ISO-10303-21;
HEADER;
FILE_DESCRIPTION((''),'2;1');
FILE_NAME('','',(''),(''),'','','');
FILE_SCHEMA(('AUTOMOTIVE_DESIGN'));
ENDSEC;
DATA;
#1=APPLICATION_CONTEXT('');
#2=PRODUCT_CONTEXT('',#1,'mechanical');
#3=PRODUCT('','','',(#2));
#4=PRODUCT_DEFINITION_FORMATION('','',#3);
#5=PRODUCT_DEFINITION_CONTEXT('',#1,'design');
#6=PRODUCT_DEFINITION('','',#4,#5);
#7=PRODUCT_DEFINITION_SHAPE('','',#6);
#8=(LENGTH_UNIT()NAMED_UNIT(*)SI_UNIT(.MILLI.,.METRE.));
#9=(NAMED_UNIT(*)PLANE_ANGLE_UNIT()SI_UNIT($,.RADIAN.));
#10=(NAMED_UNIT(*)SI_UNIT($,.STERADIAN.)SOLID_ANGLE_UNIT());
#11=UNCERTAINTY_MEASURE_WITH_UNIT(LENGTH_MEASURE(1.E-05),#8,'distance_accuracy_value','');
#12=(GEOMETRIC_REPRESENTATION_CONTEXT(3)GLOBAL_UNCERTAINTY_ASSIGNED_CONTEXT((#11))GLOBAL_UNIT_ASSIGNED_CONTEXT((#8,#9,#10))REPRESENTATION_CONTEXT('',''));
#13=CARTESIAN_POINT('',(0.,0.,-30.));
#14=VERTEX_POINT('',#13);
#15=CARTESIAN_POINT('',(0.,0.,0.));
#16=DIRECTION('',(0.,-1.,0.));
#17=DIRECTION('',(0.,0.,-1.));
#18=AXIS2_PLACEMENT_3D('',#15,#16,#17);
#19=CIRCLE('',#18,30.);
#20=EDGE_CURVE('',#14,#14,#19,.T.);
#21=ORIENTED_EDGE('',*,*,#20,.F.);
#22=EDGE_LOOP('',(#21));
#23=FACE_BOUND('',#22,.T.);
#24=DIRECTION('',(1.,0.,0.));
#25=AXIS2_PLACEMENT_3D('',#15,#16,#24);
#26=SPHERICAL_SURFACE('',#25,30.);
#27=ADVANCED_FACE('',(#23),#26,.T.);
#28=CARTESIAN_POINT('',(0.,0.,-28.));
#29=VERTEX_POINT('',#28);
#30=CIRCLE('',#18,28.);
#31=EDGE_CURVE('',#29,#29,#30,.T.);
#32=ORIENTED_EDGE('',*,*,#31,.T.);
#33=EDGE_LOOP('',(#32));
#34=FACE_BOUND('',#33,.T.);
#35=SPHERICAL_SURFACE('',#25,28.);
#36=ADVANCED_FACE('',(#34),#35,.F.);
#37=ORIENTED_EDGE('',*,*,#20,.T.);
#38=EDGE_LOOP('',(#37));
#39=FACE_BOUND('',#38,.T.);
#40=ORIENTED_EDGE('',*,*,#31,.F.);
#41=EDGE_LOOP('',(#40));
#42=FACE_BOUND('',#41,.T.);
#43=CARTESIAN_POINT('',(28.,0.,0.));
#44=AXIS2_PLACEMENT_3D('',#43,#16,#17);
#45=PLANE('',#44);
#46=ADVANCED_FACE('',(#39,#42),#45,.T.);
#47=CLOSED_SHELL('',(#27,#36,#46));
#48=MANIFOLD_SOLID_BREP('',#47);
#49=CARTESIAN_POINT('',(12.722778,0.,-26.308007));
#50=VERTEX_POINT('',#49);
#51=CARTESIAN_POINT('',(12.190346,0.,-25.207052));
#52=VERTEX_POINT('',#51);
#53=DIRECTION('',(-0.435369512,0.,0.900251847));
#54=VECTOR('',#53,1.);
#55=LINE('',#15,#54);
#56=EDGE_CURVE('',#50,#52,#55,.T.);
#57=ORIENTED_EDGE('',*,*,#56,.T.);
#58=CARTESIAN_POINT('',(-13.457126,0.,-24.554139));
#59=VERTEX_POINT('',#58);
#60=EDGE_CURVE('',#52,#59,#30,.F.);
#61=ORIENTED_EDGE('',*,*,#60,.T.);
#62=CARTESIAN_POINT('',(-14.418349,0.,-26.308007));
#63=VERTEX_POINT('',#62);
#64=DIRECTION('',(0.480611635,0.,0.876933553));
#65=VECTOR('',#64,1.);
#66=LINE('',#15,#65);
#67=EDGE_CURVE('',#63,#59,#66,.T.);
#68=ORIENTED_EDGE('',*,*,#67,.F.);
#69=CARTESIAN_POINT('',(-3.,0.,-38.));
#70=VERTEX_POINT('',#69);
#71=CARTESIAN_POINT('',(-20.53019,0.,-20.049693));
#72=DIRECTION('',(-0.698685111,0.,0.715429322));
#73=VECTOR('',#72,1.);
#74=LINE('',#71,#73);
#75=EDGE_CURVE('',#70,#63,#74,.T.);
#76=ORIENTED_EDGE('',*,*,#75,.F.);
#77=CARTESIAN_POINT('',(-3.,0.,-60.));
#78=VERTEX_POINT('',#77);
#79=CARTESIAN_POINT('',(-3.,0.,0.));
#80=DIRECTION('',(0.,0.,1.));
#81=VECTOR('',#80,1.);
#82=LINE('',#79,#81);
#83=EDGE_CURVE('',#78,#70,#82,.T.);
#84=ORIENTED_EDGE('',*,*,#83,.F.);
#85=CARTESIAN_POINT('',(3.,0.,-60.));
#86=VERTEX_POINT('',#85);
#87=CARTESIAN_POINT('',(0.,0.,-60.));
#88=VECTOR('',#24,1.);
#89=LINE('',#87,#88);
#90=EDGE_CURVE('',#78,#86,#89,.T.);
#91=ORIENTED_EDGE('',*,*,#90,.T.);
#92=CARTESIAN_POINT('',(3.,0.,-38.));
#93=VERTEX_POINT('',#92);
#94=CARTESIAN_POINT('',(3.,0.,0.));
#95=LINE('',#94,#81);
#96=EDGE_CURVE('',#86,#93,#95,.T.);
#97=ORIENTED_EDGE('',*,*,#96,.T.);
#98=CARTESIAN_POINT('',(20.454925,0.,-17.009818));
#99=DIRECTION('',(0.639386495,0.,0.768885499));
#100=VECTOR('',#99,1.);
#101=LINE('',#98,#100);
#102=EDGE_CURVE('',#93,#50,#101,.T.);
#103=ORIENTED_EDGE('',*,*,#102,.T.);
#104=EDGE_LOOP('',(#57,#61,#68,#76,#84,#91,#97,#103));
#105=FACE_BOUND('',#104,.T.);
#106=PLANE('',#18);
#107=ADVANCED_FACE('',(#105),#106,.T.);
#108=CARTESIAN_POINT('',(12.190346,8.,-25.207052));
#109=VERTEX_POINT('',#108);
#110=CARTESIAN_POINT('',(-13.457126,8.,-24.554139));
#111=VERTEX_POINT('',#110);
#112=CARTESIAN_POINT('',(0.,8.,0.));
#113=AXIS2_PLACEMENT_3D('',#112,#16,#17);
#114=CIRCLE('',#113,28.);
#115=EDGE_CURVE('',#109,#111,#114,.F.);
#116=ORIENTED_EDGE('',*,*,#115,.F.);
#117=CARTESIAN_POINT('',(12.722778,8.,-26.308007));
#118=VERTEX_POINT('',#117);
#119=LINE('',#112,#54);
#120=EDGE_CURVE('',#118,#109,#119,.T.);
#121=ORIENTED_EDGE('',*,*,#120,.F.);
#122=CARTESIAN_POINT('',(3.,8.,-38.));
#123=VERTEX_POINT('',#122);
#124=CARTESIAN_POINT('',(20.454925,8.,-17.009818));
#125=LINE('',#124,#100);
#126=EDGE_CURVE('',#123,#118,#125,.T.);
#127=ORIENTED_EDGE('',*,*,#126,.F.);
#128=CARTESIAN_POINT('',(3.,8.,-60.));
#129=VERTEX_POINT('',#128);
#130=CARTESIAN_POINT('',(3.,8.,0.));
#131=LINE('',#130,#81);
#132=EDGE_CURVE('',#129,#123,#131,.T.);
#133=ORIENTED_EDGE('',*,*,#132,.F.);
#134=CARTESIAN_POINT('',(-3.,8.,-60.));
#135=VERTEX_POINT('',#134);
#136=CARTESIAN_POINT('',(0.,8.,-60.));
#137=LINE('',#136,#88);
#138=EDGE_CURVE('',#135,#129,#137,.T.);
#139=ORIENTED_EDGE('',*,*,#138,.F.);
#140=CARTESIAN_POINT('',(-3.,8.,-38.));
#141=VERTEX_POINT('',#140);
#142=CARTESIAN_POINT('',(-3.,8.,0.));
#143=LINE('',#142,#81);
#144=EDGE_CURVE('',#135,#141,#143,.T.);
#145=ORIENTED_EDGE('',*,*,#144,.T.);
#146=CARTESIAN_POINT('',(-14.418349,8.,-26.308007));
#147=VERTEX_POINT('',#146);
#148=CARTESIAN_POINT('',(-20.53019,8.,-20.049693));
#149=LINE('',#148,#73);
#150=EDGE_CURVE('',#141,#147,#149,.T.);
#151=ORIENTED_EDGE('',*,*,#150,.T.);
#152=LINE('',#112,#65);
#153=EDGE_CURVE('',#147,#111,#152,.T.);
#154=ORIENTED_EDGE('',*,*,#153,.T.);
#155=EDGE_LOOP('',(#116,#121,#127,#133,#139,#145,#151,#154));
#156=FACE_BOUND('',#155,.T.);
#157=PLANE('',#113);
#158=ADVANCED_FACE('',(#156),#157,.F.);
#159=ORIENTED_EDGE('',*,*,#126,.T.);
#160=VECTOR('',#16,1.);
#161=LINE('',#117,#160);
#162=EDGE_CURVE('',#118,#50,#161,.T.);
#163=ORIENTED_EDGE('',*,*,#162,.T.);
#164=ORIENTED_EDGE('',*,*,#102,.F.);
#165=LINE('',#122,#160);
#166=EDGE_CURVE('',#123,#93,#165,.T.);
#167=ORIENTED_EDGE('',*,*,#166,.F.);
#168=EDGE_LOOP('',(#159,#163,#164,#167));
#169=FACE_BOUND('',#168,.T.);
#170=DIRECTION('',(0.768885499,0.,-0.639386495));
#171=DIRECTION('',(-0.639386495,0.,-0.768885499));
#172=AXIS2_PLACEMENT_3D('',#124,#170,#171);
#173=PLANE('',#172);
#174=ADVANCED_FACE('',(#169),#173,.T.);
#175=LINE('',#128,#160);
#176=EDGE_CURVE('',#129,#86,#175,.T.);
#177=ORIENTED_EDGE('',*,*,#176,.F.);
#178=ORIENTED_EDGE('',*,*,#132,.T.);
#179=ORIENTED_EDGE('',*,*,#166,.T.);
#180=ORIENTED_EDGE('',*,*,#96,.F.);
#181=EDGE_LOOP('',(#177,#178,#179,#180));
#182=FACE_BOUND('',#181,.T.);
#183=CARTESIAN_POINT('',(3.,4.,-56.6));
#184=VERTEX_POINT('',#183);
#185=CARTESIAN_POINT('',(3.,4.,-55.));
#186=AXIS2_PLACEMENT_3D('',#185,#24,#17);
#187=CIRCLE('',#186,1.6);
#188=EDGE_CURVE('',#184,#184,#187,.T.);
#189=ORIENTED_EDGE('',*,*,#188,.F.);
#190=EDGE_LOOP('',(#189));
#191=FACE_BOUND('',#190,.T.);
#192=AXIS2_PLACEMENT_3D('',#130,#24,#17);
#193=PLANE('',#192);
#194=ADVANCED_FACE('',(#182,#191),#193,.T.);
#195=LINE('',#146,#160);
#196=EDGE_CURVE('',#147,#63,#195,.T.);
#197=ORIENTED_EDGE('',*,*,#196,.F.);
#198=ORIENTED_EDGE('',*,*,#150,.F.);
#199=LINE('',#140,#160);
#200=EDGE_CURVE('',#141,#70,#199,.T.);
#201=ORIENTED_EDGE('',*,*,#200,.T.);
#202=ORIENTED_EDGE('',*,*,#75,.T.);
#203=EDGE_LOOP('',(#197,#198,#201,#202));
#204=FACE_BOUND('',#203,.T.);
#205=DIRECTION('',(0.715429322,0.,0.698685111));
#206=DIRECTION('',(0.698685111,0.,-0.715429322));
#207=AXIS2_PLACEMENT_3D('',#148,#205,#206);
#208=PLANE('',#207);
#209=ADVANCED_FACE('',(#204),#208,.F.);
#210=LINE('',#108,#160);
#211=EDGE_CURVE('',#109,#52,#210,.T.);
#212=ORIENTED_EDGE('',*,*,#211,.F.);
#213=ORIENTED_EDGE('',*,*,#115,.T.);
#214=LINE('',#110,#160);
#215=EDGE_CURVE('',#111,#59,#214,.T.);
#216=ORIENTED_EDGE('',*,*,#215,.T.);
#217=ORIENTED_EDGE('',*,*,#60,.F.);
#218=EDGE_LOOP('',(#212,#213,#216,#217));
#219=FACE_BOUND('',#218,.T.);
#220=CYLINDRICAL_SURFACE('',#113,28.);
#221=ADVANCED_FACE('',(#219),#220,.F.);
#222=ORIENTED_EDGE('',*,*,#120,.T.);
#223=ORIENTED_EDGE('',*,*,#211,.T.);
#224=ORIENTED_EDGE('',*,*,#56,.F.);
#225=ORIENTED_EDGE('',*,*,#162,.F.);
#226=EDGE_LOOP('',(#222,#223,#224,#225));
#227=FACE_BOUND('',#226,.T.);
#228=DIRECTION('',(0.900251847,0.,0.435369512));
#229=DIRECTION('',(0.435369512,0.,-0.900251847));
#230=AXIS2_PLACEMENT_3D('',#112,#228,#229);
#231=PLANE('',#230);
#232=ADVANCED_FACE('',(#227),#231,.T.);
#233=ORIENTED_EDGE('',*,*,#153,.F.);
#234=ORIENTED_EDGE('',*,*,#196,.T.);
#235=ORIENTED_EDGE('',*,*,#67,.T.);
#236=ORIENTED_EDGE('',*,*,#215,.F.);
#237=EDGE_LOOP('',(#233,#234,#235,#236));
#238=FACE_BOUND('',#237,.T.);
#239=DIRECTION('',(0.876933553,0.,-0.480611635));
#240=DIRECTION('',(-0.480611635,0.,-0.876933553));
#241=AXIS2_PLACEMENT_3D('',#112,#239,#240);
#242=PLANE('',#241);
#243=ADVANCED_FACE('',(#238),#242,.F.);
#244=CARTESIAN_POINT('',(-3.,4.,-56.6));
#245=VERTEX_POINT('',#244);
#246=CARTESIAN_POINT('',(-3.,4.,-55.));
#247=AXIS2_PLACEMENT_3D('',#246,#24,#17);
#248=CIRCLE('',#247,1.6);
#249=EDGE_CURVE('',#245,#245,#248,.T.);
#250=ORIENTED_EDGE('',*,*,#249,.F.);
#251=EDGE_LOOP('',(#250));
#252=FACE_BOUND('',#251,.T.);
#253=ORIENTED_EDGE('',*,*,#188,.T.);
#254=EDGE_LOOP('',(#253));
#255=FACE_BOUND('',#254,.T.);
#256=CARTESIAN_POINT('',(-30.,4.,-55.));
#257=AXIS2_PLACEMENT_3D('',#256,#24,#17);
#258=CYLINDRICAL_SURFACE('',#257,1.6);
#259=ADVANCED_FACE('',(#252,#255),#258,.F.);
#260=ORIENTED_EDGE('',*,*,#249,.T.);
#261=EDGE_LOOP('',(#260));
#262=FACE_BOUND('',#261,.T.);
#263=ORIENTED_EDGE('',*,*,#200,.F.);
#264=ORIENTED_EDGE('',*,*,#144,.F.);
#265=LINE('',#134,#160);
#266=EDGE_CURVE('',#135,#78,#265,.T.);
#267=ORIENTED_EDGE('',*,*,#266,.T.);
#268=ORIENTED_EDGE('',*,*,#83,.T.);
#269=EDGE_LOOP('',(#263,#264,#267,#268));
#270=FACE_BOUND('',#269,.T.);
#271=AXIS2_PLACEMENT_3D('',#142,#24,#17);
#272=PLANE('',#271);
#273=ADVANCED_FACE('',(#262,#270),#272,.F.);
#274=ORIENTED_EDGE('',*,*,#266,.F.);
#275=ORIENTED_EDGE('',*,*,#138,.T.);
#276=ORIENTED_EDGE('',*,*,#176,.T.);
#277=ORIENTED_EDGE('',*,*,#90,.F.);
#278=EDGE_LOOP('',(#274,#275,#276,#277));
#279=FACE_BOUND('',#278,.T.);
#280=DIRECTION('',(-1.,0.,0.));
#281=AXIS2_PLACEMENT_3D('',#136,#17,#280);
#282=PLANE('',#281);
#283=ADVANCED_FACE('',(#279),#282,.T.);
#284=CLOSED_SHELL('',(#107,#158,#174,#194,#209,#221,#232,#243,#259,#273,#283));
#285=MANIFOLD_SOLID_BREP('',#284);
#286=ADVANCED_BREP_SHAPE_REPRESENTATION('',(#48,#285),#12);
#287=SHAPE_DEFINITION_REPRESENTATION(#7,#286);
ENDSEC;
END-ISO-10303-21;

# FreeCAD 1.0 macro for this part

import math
import FreeCAD as App
import Part
import Sketcher
from FreeCAD import Vector

doc = App.newDocument("Part")
body = doc.addObject("PartDesign::Body", "Body")

# Sketch on XY plane
sketch1 = body.newObject("Sketcher::SketchObject", "Sketch")
sketch1.AttachmentSupport = (doc.getObject("XY_Plane"), [""])
sketch1.MapMode = "FlatFace"
sketch1.addGeometry([
    Part.LineSegment(Vector(0, 30, 0), Vector(0, 28, 0)),
    Part.ArcOfCircle(Part.Circle(Vector(0, 0, 0), Vector(0, 0, 1), 28), math.radians(0), math.radians(90)),
    Part.LineSegment(Vector(28, 0, 0), Vector(30, 0, 0)),
    Part.ArcOfCircle(Part.Circle(Vector(0, 0, 0), Vector(0, 0, 1), 30), math.radians(0), math.radians(90)),
], False)
sketch1.addConstraint([
    Sketcher.Constraint("Coincident", 0, 2, 1, 2),
    Sketcher.Constraint("Coincident", 1, 1, 2, 1),
    Sketcher.Constraint("Coincident", 2, 2, 3, 1),
    Sketcher.Constraint("Coincident", 3, 2, 0, 1),
    Sketcher.Constraint("Vertical", 0),
    Sketcher.Constraint("Horizontal", 2),
    Sketcher.Constraint("Coincident", 1, 3, -1, 1),
    Sketcher.Constraint("Coincident", 3, 3, -1, 1),
    Sketcher.Constraint("PointOnObject", 0, 2, -2),
    Sketcher.Constraint("PointOnObject", 1, 1, -1),
    Sketcher.Constraint("Radius", 1, 28.0),
    Sketcher.Constraint("Radius", 3, 30.0),
])
revolution = body.newObject("PartDesign::Revolution", "Revolution")
revolution.Profile = sketch1
revolution.ReferenceAxis = (sketch1, ["V_Axis"])
revolution.Angle = 360
body2 = doc.addObject("PartDesign::Body", "Body001")

# Sketch on XZ plane
sketch2 = body2.newObject("Sketcher::SketchObject", "Sketch001")
sketch2.AttachmentSupport = (doc.getObject("XZ_Plane001"), [""])
sketch2.MapMode = "FlatFace"
sketch2.addGeometry([
    Part.LineSegment(Vector(-3, -38, 0), Vector(-3, -60, 0)),  # 0
    Part.LineSegment(Vector(-3, -60, 0), Vector(3, -60, 0)),  # 1
    Part.LineSegment(Vector(3, -60, 0), Vector(3, -38, 0)),  # 2
    Part.LineSegment(Vector(3, -38, 0), Vector(12.722778, -26.308007, 0)),  # 3
    Part.LineSegment(Vector(12.722778, -26.308007, 0), Vector(12.190346, -25.207052, 0)),  # 4
    Part.ArcOfCircle(Part.Circle(Vector(0, 0, 0), Vector(0, 0, 1), 28), math.radians(-118.725356), math.radians(-64.191191)),  # 5
    Part.LineSegment(Vector(-13.457126, -24.554139, 0), Vector(-14.418349, -26.308007, 0)),  # 6
    Part.LineSegment(Vector(-14.418349, -26.308007, 0), Vector(-3, -38, 0)),  # 7
], False)
sketch2.addConstraint([
    Sketcher.Constraint("Coincident", 0, 2, 1, 1),
    Sketcher.Constraint("Coincident", 1, 2, 2, 1),
    Sketcher.Constraint("Coincident", 2, 2, 3, 1),
    Sketcher.Constraint("Coincident", 3, 2, 4, 1),
    Sketcher.Constraint("Coincident", 4, 2, 5, 2),
    Sketcher.Constraint("Coincident", 5, 1, 6, 1),
    Sketcher.Constraint("Coincident", 6, 2, 7, 1),
    Sketcher.Constraint("Coincident", 7, 2, 0, 1),
    Sketcher.Constraint("Vertical", 0),
    Sketcher.Constraint("Horizontal", 1),
    Sketcher.Constraint("Vertical", 2),
    Sketcher.Constraint("Coincident", 5, 3, -1, 1),
    Sketcher.Constraint("Symmetric", 2, 2, 7, 2, -2),
    Sketcher.Constraint("Horizontal", 3, 2, 6, 2),
    Sketcher.Constraint("Radius", 5, 28.0),
    Sketcher.Constraint("DistanceX", 1, 1, 1, 2, 6.0),
    Sketcher.Constraint("DistanceY", 0, 2, 0, 1, 22.0),
    Sketcher.Constraint("Distance", 6, 2.0),
    Sketcher.Constraint("DistanceY", 0, 2, -1, 1, 60.0),
    Sketcher.Constraint("Distance", 4, 1.222941),
    Sketcher.Constraint("DistanceY", 4, 2, -1, 1, 25.207052),
    Sketcher.Constraint("DistanceY", 5, 1, -1, 1, 24.554139),
    Sketcher.Constraint("DistanceX", 6, 2, -1, 1, 14.418349),
])
pad1 = body2.newObject("PartDesign::Pad", "Pad")
pad1.Profile = sketch2
pad1.Length = 8
pad1.Reversed = True

# Sketch on YZ plane
sketch3 = body2.newObject("Sketcher::SketchObject", "Sketch002")
sketch3.AttachmentSupport = (doc.getObject("YZ_Plane001"), [""])
sketch3.MapMode = "FlatFace"
sketch3.AttachmentOffset = App.Placement(Vector(0, 0, 3), App.Rotation())
sketch3.addGeometry(Part.Circle(Vector(4, -55, 0), Vector(0, 0, 1), 1.6), False)
sketch3.addConstraint([
    Sketcher.Constraint("Diameter", 0, 3.2),
    Sketcher.Constraint("DistanceX", -1, 1, 0, 3, 4.0),
    Sketcher.Constraint("DistanceY", 0, 3, -1, 1, 55.0),
])
pocket1 = body2.newObject("PartDesign::Pocket", "Pocket")
pocket1.Profile = sketch3
pocket1.Type = "ThroughAll"

doc.recompute()
